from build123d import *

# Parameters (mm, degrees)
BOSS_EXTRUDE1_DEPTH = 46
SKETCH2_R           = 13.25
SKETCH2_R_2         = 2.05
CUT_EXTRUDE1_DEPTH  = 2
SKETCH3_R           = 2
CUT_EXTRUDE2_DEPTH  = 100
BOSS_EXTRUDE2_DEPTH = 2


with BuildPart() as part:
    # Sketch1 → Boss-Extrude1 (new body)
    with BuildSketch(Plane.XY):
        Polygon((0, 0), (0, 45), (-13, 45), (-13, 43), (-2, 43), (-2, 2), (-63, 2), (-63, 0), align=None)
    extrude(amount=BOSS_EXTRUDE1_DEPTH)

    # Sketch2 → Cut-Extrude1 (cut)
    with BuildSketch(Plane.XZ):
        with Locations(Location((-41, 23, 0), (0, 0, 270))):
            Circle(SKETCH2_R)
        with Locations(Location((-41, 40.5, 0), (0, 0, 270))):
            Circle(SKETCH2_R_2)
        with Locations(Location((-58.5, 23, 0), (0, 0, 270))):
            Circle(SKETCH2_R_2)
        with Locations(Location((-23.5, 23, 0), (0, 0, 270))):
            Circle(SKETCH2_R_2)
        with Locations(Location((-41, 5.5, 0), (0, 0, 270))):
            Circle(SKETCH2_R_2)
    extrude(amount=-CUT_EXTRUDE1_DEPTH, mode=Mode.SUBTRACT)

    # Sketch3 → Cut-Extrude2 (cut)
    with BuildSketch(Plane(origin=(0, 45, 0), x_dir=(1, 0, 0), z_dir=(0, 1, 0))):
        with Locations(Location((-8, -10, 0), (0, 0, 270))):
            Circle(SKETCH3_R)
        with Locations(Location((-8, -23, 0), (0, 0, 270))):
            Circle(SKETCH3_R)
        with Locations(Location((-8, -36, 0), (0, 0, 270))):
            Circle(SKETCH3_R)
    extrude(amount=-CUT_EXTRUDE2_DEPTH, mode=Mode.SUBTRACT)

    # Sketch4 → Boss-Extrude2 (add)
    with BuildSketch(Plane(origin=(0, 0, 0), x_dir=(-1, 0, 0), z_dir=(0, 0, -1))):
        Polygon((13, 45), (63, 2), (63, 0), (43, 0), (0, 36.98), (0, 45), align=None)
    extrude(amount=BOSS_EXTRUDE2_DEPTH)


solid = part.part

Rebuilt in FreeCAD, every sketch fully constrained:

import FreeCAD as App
import Part
import Sketcher
Q = App.Units.Quantity

doc = App.newDocument("Part")
body = doc.addObject("PartDesign::Body", "Body")

sketch1 = body.newObject("Sketcher::SketchObject", "Sketch")
sketch1.AttachmentSupport = (doc.getObject("XY_Plane"), [""])
sketch1.MapMode = "FlatFace"
sketch1.addGeometry([
    Part.LineSegment(App.Vector(0, 0, 0), App.Vector(0, 45, 0)),
    Part.LineSegment(App.Vector(0, 45, 0), App.Vector(-13, 45, 0)),
    Part.LineSegment(App.Vector(-13, 45, 0), App.Vector(-13, 43, 0)),
    Part.LineSegment(App.Vector(-13, 43, 0), App.Vector(-2, 43, 0)),
    Part.LineSegment(App.Vector(-2, 43, 0), App.Vector(-2, 2, 0)),
    Part.LineSegment(App.Vector(-2, 2, 0), App.Vector(-63, 2, 0)),
    Part.LineSegment(App.Vector(-63, 2, 0), App.Vector(-63, 0, 0)),
    Part.LineSegment(App.Vector(-63, 0, 0), App.Vector(0, 0, 0)),
], False)
sketch1.addConstraint([
    Sketcher.Constraint("Coincident", 0, 2, 1, 1),
    Sketcher.Constraint("Coincident", 1, 2, 2, 1),
    Sketcher.Constraint("Coincident", 2, 2, 3, 1),
    Sketcher.Constraint("Coincident", 3, 2, 4, 1),
    Sketcher.Constraint("Coincident", 4, 2, 5, 1),
    Sketcher.Constraint("Coincident", 5, 2, 6, 1),
    Sketcher.Constraint("Coincident", 6, 2, 7, 1),
    Sketcher.Constraint("Coincident", 7, 2, 0, 1),
    Sketcher.Constraint("Vertical", 0),
    Sketcher.Constraint("Horizontal", 1),
    Sketcher.Constraint("Vertical", 2),
    Sketcher.Constraint("Horizontal", 3),
    Sketcher.Constraint("Vertical", 4),
    Sketcher.Constraint("Horizontal", 5),
    Sketcher.Constraint("Vertical", 6),
    Sketcher.Constraint("Horizontal", 7),
    Sketcher.Constraint("Coincident", 7, 2, -1, 1),
    Sketcher.Constraint("Equal", 2, 6),
    Sketcher.Constraint("DistanceX", 1, 2, 1, 1, Q("13 mm")),
    Sketcher.Constraint("DistanceX", 3, 1, 3, 2, Q("11 mm")),
    Sketcher.Constraint("DistanceX", 5, 2, 5, 1, Q("61 mm")),
    Sketcher.Constraint("DistanceY", 0, 1, 0, 2, Q("45 mm")),
    Sketcher.Constraint("DistanceY", 2, 2, 2, 1, Q("2 mm")),
])
pad1 = body.newObject("PartDesign::Pad", "Pad")
pad1.Profile = sketch1
pad1.Length = 46

sketch2 = body.newObject("Sketcher::SketchObject", "Sketch001")
sketch2.AttachmentSupport = (doc.getObject("XZ_Plane"), [""])
sketch2.MapMode = "FlatFace"
sketch2.addGeometry([
    Part.Circle(App.Vector(-41, 23, 0), App.Vector(0, 0, 1), 13.25),
    Part.Circle(App.Vector(-41, 40.5, 0), App.Vector(0, 0, 1), 2.05),
    Part.Circle(App.Vector(-58.5, 23, 0), App.Vector(0, 0, 1), 2.05),
    Part.Circle(App.Vector(-23.5, 23, 0), App.Vector(0, 0, 1), 2.05),
    Part.Circle(App.Vector(-41, 5.5, 0), App.Vector(0, 0, 1), 2.05),
], False)
sketch2.addConstraint([
    Sketcher.Constraint("Equal", 1, 2),
    Sketcher.Constraint("Equal", 2, 3),
    Sketcher.Constraint("Equal", 3, 4),
    Sketcher.Constraint("Horizontal", 0, 3, 2, 3),
    Sketcher.Constraint("Horizontal", 2, 3, 3, 3),
    Sketcher.Constraint("Vertical", 0, 3, 1, 3),
    Sketcher.Constraint("Vertical", 1, 3, 4, 3),
    Sketcher.Constraint("Diameter", 0, Q("26.5 mm")),
    Sketcher.Constraint("Diameter", 1, Q("4.1 mm")),
    Sketcher.Constraint("DistanceX", 0, 3, -1, 1, Q("41 mm")),
    Sketcher.Constraint("DistanceY", -1, 1, 0, 3, Q("23 mm")),
    Sketcher.Constraint("DistanceX", 2, 3, 3, 3, Q("35 mm")),
    Sketcher.Constraint("DistanceY", 4, 3, 1, 3, Q("35 mm")),
    Sketcher.Constraint("DistanceY", -1, 1, 1, 3, Q("40.5 mm")),
    Sketcher.Constraint("DistanceX", 2, 3, -1, 1, Q("58.5 mm")),
])
pocket1 = body.newObject("PartDesign::Pocket", "Pocket")
pocket1.Profile = sketch2
pocket1.Length = 2

sketch3 = body.newObject("Sketcher::SketchObject", "Sketch002")
sketch3.AttachmentSupport = (doc.getObject("XZ_Plane"), [""])
sketch3.MapMode = "FlatFace"
sketch3.AttachmentOffset = App.Placement(App.Vector(0, 0, -45), App.Rotation())
sketch3.addGeometry([
    Part.Circle(App.Vector(-8, 10, 0), App.Vector(0, 0, 1), 2),
    Part.Circle(App.Vector(-8, 23, 0), App.Vector(0, 0, 1), 2),
    Part.Circle(App.Vector(-8, 36, 0), App.Vector(0, 0, 1), 2),
], False)
sketch3.addConstraint([
    Sketcher.Constraint("Equal", 0, 1),
    Sketcher.Constraint("Equal", 1, 2),
    Sketcher.Constraint("Vertical", 0, 3, 1, 3),
    Sketcher.Constraint("Vertical", 1, 3, 2, 3),
    Sketcher.Constraint("Diameter", 0, Q("4 mm")),
    Sketcher.Constraint("DistanceX", 0, 3, -1, 1, Q("8 mm")),
    Sketcher.Constraint("DistanceY", -1, 1, 0, 3, Q("10 mm")),
    Sketcher.Constraint("DistanceY", -1, 1, 1, 3, Q("23 mm")),
    Sketcher.Constraint("DistanceY", -1, 1, 2, 3, Q("36 mm")),
])
pocket2 = body.newObject("PartDesign::Pocket", "Pocket001")
pocket2.Profile = sketch3
pocket2.Length = 100
pocket2.Reversed = True

sketch4 = body.newObject("Sketcher::SketchObject", "Sketch003")
sketch4.AttachmentSupport = (doc.getObject("XY_Plane"), [""])
sketch4.MapMode = "FlatFace"
sketch4.addGeometry([
    Part.LineSegment(App.Vector(-63, 2, 0), App.Vector(-13, 45, 0)),
    Part.LineSegment(App.Vector(-13, 45, 0), App.Vector(0, 45, 0)),
    Part.LineSegment(App.Vector(0, 45, 0), App.Vector(0, 36.98, 0)),
    Part.LineSegment(App.Vector(0, 36.98, 0), App.Vector(-43, 0, 0)),
    Part.LineSegment(App.Vector(-43, 0, 0), App.Vector(-63, 0, 0)),
    Part.LineSegment(App.Vector(-63, 0, 0), App.Vector(-63, 2, 0)),
], False)
sketch4.addConstraint([
    Sketcher.Constraint("Coincident", 0, 2, 1, 1),
    Sketcher.Constraint("Coincident", 1, 2, 2, 1),
    Sketcher.Constraint("Coincident", 2, 2, 3, 1),
    Sketcher.Constraint("Coincident", 3, 2, 4, 1),
    Sketcher.Constraint("Coincident", 4, 2, 5, 1),
    Sketcher.Constraint("Coincident", 5, 2, 0, 1),
    Sketcher.Constraint("Horizontal", 1),
    Sketcher.Constraint("Vertical", 2),
    Sketcher.Constraint("Horizontal", 4),
    Sketcher.Constraint("Vertical", 5),
    Sketcher.Constraint("PointOnObject", 1, 2, -2),
    Sketcher.Constraint("PointOnObject", 3, 2, -1),
    Sketcher.Constraint("Parallel", 0, 3),
    Sketcher.Constraint("DistanceX", 1, 1, 1, 2, Q("13 mm")),
    Sketcher.Constraint("DistanceX", 4, 2, 4, 1, Q("20 mm")),
    Sketcher.Constraint("DistanceY", 5, 1, 5, 2, Q("2 mm")),
    Sketcher.Constraint("DistanceY", -1, 1, 0, 2, Q("45 mm")),
    Sketcher.Constraint("DistanceX", 3, 2, -1, 1, Q("43 mm")),
])
pad2 = body.newObject("PartDesign::Pad", "Pad001")
pad2.Profile = sketch4
pad2.Length = 2
pad2.Reversed = True

doc.recompute()
